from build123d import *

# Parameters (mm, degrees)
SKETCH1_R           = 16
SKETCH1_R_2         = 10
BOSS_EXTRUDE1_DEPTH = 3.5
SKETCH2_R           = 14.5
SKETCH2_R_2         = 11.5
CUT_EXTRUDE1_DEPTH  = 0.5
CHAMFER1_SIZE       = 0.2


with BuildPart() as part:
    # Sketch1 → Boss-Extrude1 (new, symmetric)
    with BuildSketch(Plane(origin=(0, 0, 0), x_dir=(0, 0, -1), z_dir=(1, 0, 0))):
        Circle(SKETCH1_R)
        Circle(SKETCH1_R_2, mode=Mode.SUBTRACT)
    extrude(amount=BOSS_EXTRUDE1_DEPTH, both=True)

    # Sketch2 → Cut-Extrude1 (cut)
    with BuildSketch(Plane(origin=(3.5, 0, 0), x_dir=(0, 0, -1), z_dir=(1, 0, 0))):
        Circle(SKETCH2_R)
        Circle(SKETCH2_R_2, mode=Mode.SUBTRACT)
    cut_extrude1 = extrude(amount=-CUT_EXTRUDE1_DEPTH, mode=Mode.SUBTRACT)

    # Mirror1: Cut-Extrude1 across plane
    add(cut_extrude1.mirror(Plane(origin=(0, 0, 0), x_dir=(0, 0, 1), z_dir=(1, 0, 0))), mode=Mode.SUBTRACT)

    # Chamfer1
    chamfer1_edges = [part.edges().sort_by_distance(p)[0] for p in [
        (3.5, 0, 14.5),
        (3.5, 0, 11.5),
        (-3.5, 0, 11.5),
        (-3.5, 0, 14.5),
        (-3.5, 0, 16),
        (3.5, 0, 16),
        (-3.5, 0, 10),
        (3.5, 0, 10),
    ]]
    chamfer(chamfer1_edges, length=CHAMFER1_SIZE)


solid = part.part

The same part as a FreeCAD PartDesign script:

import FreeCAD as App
import Part
import Sketcher

V = App.Vector
Q = App.Units.Quantity


def edges_at(feature, points):
    """Names of the edges that pass closest to the given points."""
    edges = feature.Shape.Edges
    near = lambda p: min(range(len(edges)), key=lambda i: edges[i].distToShape(Part.Vertex(*p))[0])
    return sorted({f"Edge{near(p) + 1}" for p in points})

doc = App.newDocument("Part")
body = doc.addObject("PartDesign::Body", "Body")

sketch1 = body.newObject("Sketcher::SketchObject", "Sketch")
sketch1.AttachmentSupport = (doc.getObject("YZ_Plane"), [""])
sketch1.MapMode = "FlatFace"
sketch1.addGeometry([
    Part.Circle(V(0, 0, 0), V(0, 0, 1), 16),
    Part.Circle(V(0, 0, 0), V(0, 0, 1), 10),
], False)
sketch1.addConstraint([
    Sketcher.Constraint("Coincident", 0, 3, -1, 1),
    Sketcher.Constraint("Coincident", 1, 3, -1, 1),
    Sketcher.Constraint("Diameter", 0, Q("32 mm")),
    Sketcher.Constraint("Diameter", 1, Q("20 mm")),
])
pad1 = body.newObject("PartDesign::Pad", "Pad")
pad1.Profile = sketch1
pad1.Length = 7
pad1.Midplane = True

sketch2 = body.newObject("Sketcher::SketchObject", "Sketch001")
sketch2.AttachmentSupport = (doc.getObject("YZ_Plane"), [""])
sketch2.MapMode = "FlatFace"
sketch2.AttachmentOffset = App.Placement(V(0, 0, 3.5), App.Rotation())
sketch2.addGeometry([
    Part.Circle(V(0, 0, 0), V(0, 0, 1), 14),
    Part.Circle(V(0, 0, 0), V(0, 0, 1), 12),
], False)
sketch2.addConstraint([
    Sketcher.Constraint("Coincident", 0, 3, -1, 1),
    Sketcher.Constraint("Coincident", 1, 3, -1, 1),
    Sketcher.Constraint("Diameter", 0, Q("29 mm")),
    Sketcher.Constraint("Diameter", 1, Q("23 mm")),
])
pocket1 = body.newObject("PartDesign::Pocket", "Pocket")
pocket1.Profile = sketch2
pocket1.Length = 0.5
doc.recompute()

mirrored = body.newObject("PartDesign::Mirrored", "Mirrored")
mirrored.Originals = [pocket1]
mirrored.MirrorPlane = (doc.getObject("YZ_Plane"), [""])
body.Tip = mirrored
doc.recompute()

chamfer = body.newObject("PartDesign::Chamfer", "Chamfer")
chamfer.Base = (mirrored, edges_at(mirrored, [
    (3.5, 0, 14.5),
    (3.5, 0, 11.5),
    (-3.5, 0, 11.5),
    (-3.5, 0, 14.5),
    (-3.5, 0, 16),
    (3.5, 0, 16),
    (-3.5, 0, 10),
    (3.5, 0, 10),
]))
chamfer.Size = 0.2

doc.recompute()
